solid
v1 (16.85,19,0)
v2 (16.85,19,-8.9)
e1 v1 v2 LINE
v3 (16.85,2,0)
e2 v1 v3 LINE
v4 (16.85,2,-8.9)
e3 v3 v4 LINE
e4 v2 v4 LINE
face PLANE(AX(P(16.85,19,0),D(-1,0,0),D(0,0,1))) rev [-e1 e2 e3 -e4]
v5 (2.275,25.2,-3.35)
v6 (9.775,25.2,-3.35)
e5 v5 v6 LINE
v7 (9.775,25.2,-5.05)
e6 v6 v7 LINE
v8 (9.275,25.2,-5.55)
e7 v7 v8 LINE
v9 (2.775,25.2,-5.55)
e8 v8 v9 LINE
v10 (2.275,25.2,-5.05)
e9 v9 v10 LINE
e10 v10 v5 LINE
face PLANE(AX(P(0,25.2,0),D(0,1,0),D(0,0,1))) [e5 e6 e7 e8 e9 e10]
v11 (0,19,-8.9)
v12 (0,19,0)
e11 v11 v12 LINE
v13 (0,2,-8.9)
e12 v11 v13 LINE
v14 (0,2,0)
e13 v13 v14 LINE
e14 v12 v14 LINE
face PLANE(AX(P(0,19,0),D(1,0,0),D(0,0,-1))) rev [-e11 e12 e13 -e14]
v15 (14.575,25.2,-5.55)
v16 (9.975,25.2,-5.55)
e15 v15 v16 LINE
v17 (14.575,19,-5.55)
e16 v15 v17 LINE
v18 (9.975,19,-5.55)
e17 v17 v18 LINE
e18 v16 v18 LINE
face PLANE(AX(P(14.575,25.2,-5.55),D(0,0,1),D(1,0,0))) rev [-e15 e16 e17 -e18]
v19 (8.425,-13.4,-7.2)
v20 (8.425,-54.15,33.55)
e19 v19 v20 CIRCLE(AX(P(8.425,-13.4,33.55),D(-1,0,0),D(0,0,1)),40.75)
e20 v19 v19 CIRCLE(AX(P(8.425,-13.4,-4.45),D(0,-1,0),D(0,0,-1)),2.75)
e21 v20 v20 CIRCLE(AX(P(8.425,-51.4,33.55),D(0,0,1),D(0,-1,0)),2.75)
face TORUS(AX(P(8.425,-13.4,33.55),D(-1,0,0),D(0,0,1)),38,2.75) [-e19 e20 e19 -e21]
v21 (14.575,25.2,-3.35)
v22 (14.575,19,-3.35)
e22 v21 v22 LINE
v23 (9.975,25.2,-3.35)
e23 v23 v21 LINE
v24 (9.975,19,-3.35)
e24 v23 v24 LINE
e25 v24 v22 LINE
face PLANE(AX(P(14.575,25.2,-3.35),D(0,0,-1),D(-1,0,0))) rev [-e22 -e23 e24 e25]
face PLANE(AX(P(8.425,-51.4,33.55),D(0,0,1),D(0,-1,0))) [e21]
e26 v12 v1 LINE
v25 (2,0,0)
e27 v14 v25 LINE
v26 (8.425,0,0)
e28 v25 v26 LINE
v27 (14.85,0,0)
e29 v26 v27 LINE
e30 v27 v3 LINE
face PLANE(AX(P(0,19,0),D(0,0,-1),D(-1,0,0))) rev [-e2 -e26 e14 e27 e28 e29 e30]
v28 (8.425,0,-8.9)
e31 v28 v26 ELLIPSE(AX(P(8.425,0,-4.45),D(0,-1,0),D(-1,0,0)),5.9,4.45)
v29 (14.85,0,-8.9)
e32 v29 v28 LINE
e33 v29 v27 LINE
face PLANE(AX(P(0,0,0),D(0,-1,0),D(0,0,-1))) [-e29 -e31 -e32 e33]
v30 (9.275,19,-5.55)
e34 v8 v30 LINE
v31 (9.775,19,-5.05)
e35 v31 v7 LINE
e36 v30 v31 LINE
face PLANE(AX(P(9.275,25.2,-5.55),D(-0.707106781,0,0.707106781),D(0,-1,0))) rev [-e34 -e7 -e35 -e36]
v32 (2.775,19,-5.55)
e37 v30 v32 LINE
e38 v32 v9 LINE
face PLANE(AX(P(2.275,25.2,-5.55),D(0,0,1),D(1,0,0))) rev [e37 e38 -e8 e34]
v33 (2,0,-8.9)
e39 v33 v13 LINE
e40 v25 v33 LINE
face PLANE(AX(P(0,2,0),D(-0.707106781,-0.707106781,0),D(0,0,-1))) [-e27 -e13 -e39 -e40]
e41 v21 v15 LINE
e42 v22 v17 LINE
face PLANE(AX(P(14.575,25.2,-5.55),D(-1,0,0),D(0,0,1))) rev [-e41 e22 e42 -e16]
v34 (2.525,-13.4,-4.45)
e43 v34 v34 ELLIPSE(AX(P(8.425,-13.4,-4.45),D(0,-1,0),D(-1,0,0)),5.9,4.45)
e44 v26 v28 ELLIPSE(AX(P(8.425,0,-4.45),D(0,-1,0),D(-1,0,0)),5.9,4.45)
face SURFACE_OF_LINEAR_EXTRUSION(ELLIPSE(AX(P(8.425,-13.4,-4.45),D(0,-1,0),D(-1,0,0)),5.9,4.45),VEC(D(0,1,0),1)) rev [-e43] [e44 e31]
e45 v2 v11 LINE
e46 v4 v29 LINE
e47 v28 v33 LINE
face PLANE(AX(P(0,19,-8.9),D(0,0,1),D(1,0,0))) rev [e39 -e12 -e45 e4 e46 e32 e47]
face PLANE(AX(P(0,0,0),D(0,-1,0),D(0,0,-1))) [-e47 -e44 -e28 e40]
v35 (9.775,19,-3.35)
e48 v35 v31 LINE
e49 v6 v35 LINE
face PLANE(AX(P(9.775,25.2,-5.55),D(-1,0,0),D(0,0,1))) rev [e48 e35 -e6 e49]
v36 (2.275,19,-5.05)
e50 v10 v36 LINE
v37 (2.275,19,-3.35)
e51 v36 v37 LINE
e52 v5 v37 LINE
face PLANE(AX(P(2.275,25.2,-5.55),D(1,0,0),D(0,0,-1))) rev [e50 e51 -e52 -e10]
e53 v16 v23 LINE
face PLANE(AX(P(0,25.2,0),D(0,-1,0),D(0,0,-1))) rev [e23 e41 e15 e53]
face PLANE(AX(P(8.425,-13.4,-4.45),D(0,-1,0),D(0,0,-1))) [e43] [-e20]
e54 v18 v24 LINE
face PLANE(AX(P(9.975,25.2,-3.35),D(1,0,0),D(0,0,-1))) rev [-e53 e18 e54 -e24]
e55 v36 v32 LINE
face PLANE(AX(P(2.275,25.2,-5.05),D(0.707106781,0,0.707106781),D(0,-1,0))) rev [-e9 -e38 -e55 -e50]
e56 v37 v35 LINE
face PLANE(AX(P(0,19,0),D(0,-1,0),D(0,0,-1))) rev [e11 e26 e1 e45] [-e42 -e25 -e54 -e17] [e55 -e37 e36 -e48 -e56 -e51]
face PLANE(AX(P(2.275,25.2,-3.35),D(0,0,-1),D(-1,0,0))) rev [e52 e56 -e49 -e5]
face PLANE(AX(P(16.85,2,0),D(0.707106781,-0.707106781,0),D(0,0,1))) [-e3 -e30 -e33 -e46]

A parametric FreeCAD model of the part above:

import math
import FreeCAD as App
import Part
import Sketcher

V = App.Vector


def edges_at(feature, points):
    """Names of the edges that pass closest to the given points."""
    edges = feature.Shape.Edges
    near = lambda p: min(range(len(edges)), key=lambda i: edges[i].distToShape(Part.Vertex(*p))[0])
    return sorted({f"Edge{near(p) + 1}" for p in points})

doc = App.newDocument("Part")
body = doc.addObject("PartDesign::Body", "Body")

# Sketch on XZ plane
sketch1 = body.newObject("Sketcher::SketchObject", "Sketch")
sketch1.AttachmentSupport = (doc.getObject("XZ_Plane"), [""])
sketch1.MapMode = "FlatFace"
sketch1.addGeometry(Part.LineSegment(V(0, -9, 0), V(0, 0, 0)), False)
sketch1.addGeometry(Part.LineSegment(V(0, 0, 0), V(17, 0, 0)), False)
sketch1.addGeometry(Part.LineSegment(V(17, 0, 0), V(17, -9, 0)), False)
sketch1.addGeometry(Part.LineSegment(V(17, -9, 0), V(0, -9, 0)), False)
sketch1.addConstraint(Sketcher.Constraint("Coincident", 0, 2, 1, 1))
sketch1.addConstraint(Sketcher.Constraint("Coincident", 1, 2, 2, 1))
sketch1.addConstraint(Sketcher.Constraint("Coincident", 2, 2, 3, 1))
sketch1.addConstraint(Sketcher.Constraint("Coincident", 3, 2, 0, 1))
sketch1.addConstraint(Sketcher.Constraint("Vertical", 0))
sketch1.addConstraint(Sketcher.Constraint("Horizontal", 1))
sketch1.addConstraint(Sketcher.Constraint("Vertical", 2))
sketch1.addConstraint(Sketcher.Constraint("Horizontal", 3))
sketch1.addConstraint(Sketcher.Constraint("Coincident", 0, 2, -1, 1))
sketch1.addConstraint(Sketcher.Constraint("DistanceY", 0, 1, 0, 2, 8.9))
sketch1.addConstraint(Sketcher.Constraint("DistanceX", 1, 1, 1, 2, 16.85))
pad1 = body.newObject("PartDesign::Pad", "Pad")
pad1.Profile = sketch1
pad1.Length = 19
pad1.Reversed = True

# Sketch on XZ plane
sketch2 = body.newObject("Sketcher::SketchObject", "Sketch001")
sketch2.AttachmentSupport = (doc.getObject("XZ_Plane"), [""])
sketch2.MapMode = "FlatFace"
sketch2.AttachmentOffset = App.Placement(V(0, 0, -19), App.Rotation())
sketch2.addGeometry(Part.LineSegment(V(2.3, -5.5, 0), V(2.3, -3.4, 0)), False)
sketch2.addGeometry(Part.LineSegment(V(2.3, -3.4, 0), V(9.8, -3.4, 0)), False)
sketch2.addGeometry(Part.LineSegment(V(9.8, -3.4, 0), V(9.8, -5.5, 0)), False)
sketch2.addGeometry(Part.LineSegment(V(9.8, -5.5, 0), V(2.3, -5.5, 0)), False)
sketch2.addGeometry(Part.LineSegment(V(10, -5.5, 0), V(10, -3.4, 0)), False)
sketch2.addGeometry(Part.LineSegment(V(10, -3.4, 0), V(14.6, -3.4, 0)), False)
sketch2.addGeometry(Part.LineSegment(V(14.6, -3.4, 0), V(14.6, -5.5, 0)), False)
sketch2.addGeometry(Part.LineSegment(V(14.6, -5.5, 0), V(10, -5.5, 0)), False)
sketch2.addConstraint(Sketcher.Constraint("Coincident", 0, 2, 1, 1))
sketch2.addConstraint(Sketcher.Constraint("Coincident", 1, 2, 2, 1))
sketch2.addConstraint(Sketcher.Constraint("Coincident", 2, 2, 3, 1))
sketch2.addConstraint(Sketcher.Constraint("Coincident", 3, 2, 0, 1))
sketch2.addConstraint(Sketcher.Constraint("Coincident", 4, 2, 5, 1))
sketch2.addConstraint(Sketcher.Constraint("Coincident", 5, 2, 6, 1))
sketch2.addConstraint(Sketcher.Constraint("Coincident", 6, 2, 7, 1))
sketch2.addConstraint(Sketcher.Constraint("Coincident", 7, 2, 4, 1))
sketch2.addConstraint(Sketcher.Constraint("Vertical", 0))
sketch2.addConstraint(Sketcher.Constraint("Horizontal", 1))
sketch2.addConstraint(Sketcher.Constraint("Vertical", 2))
sketch2.addConstraint(Sketcher.Constraint("Horizontal", 3))
sketch2.addConstraint(Sketcher.Constraint("Vertical", 4))
sketch2.addConstraint(Sketcher.Constraint("Horizontal", 5))
sketch2.addConstraint(Sketcher.Constraint("Vertical", 6))
sketch2.addConstraint(Sketcher.Constraint("Horizontal", 7))
sketch2.addConstraint(Sketcher.Constraint("Horizontal", 1, 2, 4, 2))
sketch2.addConstraint(Sketcher.Constraint("Horizontal", 3, 2, 6, 2))
sketch2.addConstraint(Sketcher.Constraint("DistanceX", 1, 1, 1, 2, 7.5))
sketch2.addConstraint(Sketcher.Constraint("DistanceX", 5, 1, 5, 2, 4.6))
sketch2.addConstraint(Sketcher.Constraint("DistanceY", 0, 1, 0, 2, 2.2))
sketch2.addConstraint(Sketcher.Constraint("DistanceX", 1, 2, 4, 2, 0.2))
sketch2.addConstraint(Sketcher.Constraint("DistanceY", 0, 2, -1, 1, 3.35))
sketch2.addConstraint(Sketcher.Constraint("DistanceX", -1, 1, 0, 2, 2.275))
pad2 = body.newObject("PartDesign::Pad", "Pad001")
pad2.Profile = sketch2
pad2.Length = 6.2
pad2.Reversed = True
doc.recompute()

chamfer = body.newObject("PartDesign::Chamfer", "Chamfer")
chamfer.Base = (pad2, edges_at(pad2, [(2.275, 22.1, -5.55), (9.775, 22.1, -5.55)]))
chamfer.Size = 0.5

# Sketch on XZ plane
sketch3 = body.newObject("Sketcher::SketchObject", "Sketch002")
sketch3.AttachmentSupport = (doc.getObject("XZ_Plane"), [""])
sketch3.MapMode = "FlatFace"
sketch3.addGeometry(Part.Ellipse(V(2.525, -4.45, 0), V(8.425, -8.9, 0), V(8.425, -4.45, 0)), False)
sketch3.addConstraint(Sketcher.Constraint("Block", 0))
pad3 = body.newObject("PartDesign::Pad", "Pad002")
pad3.Profile = sketch3
pad3.Length = 13.4
doc.recompute()

chamfer2 = body.newObject("PartDesign::Chamfer", "Chamfer001")
chamfer2.Base = (pad3, edges_at(pad3, [(16.85, 0, -4.45), (0, 0, -4.45)]))
chamfer2.Size = 2

# Sketch on XZ plane
sketch4 = body.newObject("Sketcher::SketchObject", "Sketch003")
sketch4.AttachmentSupport = (doc.getObject("XZ_Plane"), [""])
sketch4.MapMode = "FlatFace"
sketch4.AttachmentOffset = App.Placement(V(0, 0, 13.4), App.Rotation())
sketch4.addGeometry(Part.Circle(V(8.4, -4.5, 0), V(0, 0, 1), 2.8), False)
sketch4.addConstraint(Sketcher.Constraint("Diameter", 0, 5.5))
sketch4.addConstraint(Sketcher.Constraint("DistanceY", 0, 3, -1, 1, 4.45))
sketch4.addConstraint(Sketcher.Constraint("DistanceX", -1, 1, 0, 3, 8.425))

# Sketch on YZ plane
sketch5 = body.newObject("Sketcher::SketchObject", "Sketch004")
sketch5.AttachmentSupport = (doc.getObject("YZ_Plane"), [""])
sketch5.MapMode = "FlatFace"
sketch5.addGeometry(Part.ArcOfCircle(Part.Circle(V(-13, 34, 0), V(0, 0, 1), 38), math.radians(180), math.radians(270)), False)
sketch5.addConstraint(Sketcher.Constraint("Radius", 0, 38.0))
sketch5.addConstraint(Sketcher.Constraint("DistanceX", 0, 1, 0, 2, 38.0))
sketch5.addConstraint(Sketcher.Constraint("DistanceY", 0, 2, 0, 1, 38.0))
sketch5.addConstraint(Sketcher.Constraint("DistanceX", 0, 3, -1, 1, 13.4))
sketch5.addConstraint(Sketcher.Constraint("DistanceY", -1, 1, 0, 3, 33.55))
doc.recompute()

additivepipe = body.newObject("PartDesign::AdditivePipe", "AdditivePipe")
additivepipe.Profile = sketch4
additivepipe.Spine = (sketch5, ["Edge1"])

doc.recompute()
